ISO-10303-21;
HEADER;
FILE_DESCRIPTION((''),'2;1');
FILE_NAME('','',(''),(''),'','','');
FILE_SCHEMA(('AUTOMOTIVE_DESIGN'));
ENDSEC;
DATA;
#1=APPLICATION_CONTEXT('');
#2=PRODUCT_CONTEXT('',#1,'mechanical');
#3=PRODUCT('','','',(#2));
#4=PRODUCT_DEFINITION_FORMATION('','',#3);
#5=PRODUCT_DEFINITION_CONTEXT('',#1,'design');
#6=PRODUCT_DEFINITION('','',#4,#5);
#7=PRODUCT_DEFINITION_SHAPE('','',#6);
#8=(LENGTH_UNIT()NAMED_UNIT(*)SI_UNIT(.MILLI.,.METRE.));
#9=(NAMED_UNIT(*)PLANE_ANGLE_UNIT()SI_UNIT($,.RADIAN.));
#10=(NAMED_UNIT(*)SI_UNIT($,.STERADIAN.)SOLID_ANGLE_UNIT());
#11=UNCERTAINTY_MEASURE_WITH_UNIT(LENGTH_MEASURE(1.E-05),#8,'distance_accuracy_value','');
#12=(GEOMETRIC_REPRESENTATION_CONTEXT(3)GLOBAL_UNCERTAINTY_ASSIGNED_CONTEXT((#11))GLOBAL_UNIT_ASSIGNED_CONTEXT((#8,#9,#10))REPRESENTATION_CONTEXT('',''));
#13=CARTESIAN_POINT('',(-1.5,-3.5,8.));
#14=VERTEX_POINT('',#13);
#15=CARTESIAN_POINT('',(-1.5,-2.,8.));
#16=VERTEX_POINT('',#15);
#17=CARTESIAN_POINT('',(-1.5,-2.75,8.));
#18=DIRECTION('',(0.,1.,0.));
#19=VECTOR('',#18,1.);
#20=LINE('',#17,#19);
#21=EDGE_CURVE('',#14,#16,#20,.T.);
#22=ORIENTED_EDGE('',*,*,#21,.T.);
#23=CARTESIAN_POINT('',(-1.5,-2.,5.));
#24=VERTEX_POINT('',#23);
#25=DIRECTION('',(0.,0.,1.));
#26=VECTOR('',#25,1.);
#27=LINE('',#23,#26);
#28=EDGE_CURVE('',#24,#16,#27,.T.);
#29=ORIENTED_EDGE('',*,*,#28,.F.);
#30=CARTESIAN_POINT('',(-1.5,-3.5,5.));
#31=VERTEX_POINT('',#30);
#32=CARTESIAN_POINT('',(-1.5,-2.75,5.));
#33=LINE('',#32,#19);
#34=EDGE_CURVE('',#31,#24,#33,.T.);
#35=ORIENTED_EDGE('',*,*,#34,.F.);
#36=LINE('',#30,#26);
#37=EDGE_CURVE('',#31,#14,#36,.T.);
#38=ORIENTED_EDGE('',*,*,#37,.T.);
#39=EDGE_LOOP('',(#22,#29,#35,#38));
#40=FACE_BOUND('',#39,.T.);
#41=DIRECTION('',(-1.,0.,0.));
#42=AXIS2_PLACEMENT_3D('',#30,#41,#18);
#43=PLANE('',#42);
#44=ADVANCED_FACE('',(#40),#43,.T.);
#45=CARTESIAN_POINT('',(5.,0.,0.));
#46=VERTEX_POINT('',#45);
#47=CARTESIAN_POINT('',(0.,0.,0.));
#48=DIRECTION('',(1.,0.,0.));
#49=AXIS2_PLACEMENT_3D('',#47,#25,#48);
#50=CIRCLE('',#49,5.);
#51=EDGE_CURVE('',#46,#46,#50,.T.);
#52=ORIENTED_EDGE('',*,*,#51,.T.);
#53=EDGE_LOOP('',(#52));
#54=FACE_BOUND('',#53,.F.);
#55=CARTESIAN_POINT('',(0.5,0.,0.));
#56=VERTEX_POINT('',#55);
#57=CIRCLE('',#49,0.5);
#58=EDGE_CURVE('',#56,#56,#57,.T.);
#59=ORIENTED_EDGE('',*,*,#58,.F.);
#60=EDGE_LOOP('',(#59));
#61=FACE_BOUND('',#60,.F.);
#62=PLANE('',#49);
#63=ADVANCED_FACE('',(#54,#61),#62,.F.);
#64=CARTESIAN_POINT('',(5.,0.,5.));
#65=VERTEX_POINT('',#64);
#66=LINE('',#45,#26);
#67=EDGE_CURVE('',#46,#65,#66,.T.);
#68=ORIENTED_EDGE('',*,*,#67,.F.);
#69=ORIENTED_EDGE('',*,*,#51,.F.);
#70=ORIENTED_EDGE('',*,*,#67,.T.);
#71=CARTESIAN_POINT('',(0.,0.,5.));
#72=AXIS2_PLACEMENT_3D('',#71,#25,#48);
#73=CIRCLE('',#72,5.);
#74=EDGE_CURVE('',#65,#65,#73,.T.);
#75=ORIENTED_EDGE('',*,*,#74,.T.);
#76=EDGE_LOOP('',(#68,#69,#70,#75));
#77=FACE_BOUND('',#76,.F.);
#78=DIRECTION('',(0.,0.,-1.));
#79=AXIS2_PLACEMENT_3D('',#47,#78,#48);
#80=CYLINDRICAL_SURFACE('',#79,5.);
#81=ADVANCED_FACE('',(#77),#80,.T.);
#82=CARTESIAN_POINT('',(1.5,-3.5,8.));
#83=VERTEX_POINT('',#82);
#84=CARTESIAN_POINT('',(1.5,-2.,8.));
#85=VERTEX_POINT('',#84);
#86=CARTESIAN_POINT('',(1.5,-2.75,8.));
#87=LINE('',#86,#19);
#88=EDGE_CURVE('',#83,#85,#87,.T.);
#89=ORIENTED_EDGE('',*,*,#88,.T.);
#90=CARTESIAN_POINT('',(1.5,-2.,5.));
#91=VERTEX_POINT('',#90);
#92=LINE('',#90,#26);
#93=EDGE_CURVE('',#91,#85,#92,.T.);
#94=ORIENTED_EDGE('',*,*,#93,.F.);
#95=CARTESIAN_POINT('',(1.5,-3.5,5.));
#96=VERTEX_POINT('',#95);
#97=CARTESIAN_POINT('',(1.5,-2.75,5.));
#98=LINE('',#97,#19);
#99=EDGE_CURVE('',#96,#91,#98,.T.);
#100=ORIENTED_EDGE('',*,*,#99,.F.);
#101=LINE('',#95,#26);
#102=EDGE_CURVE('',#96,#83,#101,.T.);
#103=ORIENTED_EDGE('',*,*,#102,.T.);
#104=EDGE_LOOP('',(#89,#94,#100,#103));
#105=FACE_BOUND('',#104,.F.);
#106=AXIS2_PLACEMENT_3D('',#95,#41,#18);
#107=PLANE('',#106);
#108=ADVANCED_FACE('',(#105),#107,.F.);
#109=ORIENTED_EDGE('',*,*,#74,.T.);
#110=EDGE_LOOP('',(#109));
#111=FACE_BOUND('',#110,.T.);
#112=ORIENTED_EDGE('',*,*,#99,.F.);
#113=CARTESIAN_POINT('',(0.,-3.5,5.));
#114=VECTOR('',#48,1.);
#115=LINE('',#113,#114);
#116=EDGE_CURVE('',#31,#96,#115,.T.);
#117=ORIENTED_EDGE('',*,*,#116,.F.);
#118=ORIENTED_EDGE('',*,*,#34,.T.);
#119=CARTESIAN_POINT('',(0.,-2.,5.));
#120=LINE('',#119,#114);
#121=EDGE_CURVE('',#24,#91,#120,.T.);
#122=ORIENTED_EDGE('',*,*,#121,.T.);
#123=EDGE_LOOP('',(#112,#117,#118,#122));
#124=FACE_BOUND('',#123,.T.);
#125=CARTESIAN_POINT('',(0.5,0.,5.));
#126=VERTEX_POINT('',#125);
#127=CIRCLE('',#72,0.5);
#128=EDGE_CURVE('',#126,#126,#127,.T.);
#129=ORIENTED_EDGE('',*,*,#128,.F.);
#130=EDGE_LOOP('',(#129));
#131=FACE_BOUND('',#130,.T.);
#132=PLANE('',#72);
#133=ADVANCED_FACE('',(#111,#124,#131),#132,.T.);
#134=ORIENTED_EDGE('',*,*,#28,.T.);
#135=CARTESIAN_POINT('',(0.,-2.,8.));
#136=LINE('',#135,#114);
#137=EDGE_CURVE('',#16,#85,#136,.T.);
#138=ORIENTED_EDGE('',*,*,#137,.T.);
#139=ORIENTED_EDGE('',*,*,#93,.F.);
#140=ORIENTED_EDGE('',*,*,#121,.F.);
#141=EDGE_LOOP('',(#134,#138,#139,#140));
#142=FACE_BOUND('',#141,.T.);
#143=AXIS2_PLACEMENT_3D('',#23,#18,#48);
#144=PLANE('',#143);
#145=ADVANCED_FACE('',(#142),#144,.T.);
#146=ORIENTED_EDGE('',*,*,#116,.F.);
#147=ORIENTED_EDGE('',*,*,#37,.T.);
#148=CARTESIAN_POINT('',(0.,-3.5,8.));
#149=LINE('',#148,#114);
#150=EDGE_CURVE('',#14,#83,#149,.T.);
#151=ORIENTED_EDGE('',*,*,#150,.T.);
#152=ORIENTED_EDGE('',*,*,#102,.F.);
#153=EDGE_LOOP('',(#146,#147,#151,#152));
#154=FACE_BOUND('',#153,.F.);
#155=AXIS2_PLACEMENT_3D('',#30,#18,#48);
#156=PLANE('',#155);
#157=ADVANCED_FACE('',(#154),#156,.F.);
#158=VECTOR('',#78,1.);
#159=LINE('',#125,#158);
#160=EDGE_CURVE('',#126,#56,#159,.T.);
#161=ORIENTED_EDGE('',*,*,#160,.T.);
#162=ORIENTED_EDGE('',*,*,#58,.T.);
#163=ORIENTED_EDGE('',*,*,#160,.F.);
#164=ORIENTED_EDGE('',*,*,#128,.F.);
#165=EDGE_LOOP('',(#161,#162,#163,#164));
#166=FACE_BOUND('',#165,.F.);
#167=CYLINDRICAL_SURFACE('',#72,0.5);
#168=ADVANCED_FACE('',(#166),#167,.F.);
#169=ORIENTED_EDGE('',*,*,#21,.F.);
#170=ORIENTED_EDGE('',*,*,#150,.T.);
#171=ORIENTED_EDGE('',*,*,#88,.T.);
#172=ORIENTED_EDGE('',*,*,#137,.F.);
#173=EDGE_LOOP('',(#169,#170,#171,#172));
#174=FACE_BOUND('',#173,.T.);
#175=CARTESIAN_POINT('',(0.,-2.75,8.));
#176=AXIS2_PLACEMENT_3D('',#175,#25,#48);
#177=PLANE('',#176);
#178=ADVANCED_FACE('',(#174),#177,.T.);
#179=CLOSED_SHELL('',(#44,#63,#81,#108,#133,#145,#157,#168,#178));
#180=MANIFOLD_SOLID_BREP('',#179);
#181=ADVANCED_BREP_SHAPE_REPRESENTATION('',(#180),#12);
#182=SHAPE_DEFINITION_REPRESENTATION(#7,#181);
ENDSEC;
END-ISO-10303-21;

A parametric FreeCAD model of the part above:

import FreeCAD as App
import Part
import Sketcher

V = App.Vector
Q = App.Units.Quantity

doc = App.newDocument("Part")
body = doc.addObject("PartDesign::Body", "Body")

sketch1 = doc.addObject("Sketcher::SketchObject", "Sketch")
body.addObject(sketch1)
sketch1.AttachmentSupport = (doc.XY_Plane, [""])
sketch1.MapMode = "FlatFace"
sketch1.addGeometry(Part.Circle(V(0, 0, 0), V(0, 0, 1), 5), False)
sketch1.addConstraint([
    Sketcher.Constraint("Coincident", 0, 3, -1, 1),
    Sketcher.Constraint("Diameter", 0, Q("10 mm")),
])
pad1 = doc.addObject("PartDesign::Pad", "Pad")
body.addObject(pad1)
pad1.Profile = sketch1
pad1.Length = 5

sketch2 = doc.addObject("Sketcher::SketchObject", "Sketch001")
body.addObject(sketch2)
sketch2.AttachmentSupport = (doc.XY_Plane, [""])
sketch2.MapMode = "FlatFace"
sketch2.AttachmentOffset = App.Placement(V(0, 0, 5), App.Rotation())
sketch2.addGeometry([
    Part.LineSegment(V(-1.5, -2, 0), V(-1.5, -3.5, 0)),
    Part.LineSegment(V(-1.5, -3.5, 0), V(1.5, -3.5, 0)),
    Part.LineSegment(V(1.5, -3.5, 0), V(1.5, -2, 0)),
    Part.LineSegment(V(1.5, -2, 0), V(-1.5, -2, 0)),
], False)
sketch2.addConstraint([
    Sketcher.Constraint("Coincident", 0, 2, 1, 1),
    Sketcher.Constraint("Coincident", 1, 2, 2, 1),
    Sketcher.Constraint("Coincident", 2, 2, 3, 1),
    Sketcher.Constraint("Coincident", 3, 2, 0, 1),
    Sketcher.Constraint("Vertical", 0),
    Sketcher.Constraint("Horizontal", 1),
    Sketcher.Constraint("Vertical", 2),
    Sketcher.Constraint("Horizontal", 3),
    Sketcher.Constraint("DistanceX", 1, 1, 1, 2, Q("3 mm")),
    Sketcher.Constraint("DistanceY", 0, 2, 0, 1, Q("1.5 mm")),
    Sketcher.Constraint("DistanceY", 2, 2, -1, 1, Q("2 mm")),
    Sketcher.Constraint("DistanceX", 0, 2, -1, 1, Q("1.5 mm")),
])
pad2 = doc.addObject("PartDesign::Pad", "Pad001")
body.addObject(pad2)
pad2.Profile = sketch2
pad2.Length = 3

sketch3 = doc.addObject("Sketcher::SketchObject", "Sketch002")
body.addObject(sketch3)
sketch3.AttachmentSupport = (doc.XY_Plane, [""])
sketch3.MapMode = "FlatFace"
sketch3.AttachmentOffset = App.Placement(V(0, 0, 5), App.Rotation())
sketch3.addGeometry(Part.Circle(V(0, 0, 0), V(0, 0, 1), 0.5), False)
sketch3.addConstraint([
    Sketcher.Constraint("Coincident", 0, 3, -1, 1),
    Sketcher.Constraint("Diameter", 0, Q("1 mm")),
])
pocket1 = doc.addObject("PartDesign::Pocket", "Pocket")
body.addObject(pocket1)
pocket1.Profile = sketch3
pocket1.Length = 25

doc.recompute()
